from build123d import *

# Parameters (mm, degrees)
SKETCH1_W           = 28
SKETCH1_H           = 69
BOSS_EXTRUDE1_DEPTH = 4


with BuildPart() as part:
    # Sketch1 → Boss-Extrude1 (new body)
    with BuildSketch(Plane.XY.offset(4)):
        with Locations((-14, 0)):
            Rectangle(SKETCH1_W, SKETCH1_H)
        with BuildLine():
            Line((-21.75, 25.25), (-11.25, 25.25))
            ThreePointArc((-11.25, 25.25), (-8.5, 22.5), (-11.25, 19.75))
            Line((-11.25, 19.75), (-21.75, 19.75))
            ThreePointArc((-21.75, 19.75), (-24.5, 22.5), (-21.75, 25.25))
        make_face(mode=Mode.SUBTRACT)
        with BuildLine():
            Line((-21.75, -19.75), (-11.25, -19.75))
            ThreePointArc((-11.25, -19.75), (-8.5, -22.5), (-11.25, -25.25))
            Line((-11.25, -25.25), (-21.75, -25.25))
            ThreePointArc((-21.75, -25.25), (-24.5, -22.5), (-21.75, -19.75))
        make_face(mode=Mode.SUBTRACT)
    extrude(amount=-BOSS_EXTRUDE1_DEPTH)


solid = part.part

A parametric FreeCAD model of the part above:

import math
import FreeCAD as App
import Part
import Sketcher
from FreeCAD import Vector

doc = App.newDocument("Part")
body = doc.addObject("PartDesign::Body", "Body")

# Sketch on XY plane
sketch1 = body.newObject("Sketcher::SketchObject", "Sketch")
sketch1.AttachmentSupport = (doc.getObject("XY_Plane"), [""])
sketch1.MapMode = "FlatFace"
sketch1.AttachmentOffset = App.Placement(Vector(0, 0, 4), App.Rotation())
sketch1.addGeometry(Part.LineSegment(Vector(-28, 34.5, 0), Vector(-28, -34.5, 0)), False)
sketch1.addGeometry(Part.LineSegment(Vector(-28, -34.5, 0), Vector(0, -34.5, 0)), False)
sketch1.addGeometry(Part.LineSegment(Vector(0, -34.5, 0), Vector(0, 34.5, 0)), False)
sketch1.addGeometry(Part.LineSegment(Vector(0, 34.5, 0), Vector(-28, 34.5, 0)), False)
sketch1.addGeometry(Part.ArcOfCircle(Part.Circle(Vector(-21.75, -22.5, 0), Vector(0, 0, 1), 2.75), math.radians(90), math.radians(270)), False)
sketch1.addGeometry(Part.LineSegment(Vector(-21.75, -19.75, 0), Vector(-11.25, -19.75, 0)), False)
sketch1.addGeometry(Part.ArcOfCircle(Part.Circle(Vector(-11.25, -22.5, 0), Vector(0, 0, 1), 2.75), math.radians(-90), math.radians(90)), False)
sketch1.addGeometry(Part.LineSegment(Vector(-11.25, -25.25, 0), Vector(-21.75, -25.25, 0)), False)
sketch1.addGeometry(Part.ArcOfCircle(Part.Circle(Vector(-21.75, 22.5, 0), Vector(0, 0, 1), 2.75), math.radians(90), math.radians(270)), False)
sketch1.addGeometry(Part.LineSegment(Vector(-21.75, 25.25, 0), Vector(-11.25, 25.25, 0)), False)
sketch1.addGeometry(Part.ArcOfCircle(Part.Circle(Vector(-11.25, 22.5, 0), Vector(0, 0, 1), 2.75), math.radians(-90), math.radians(90)), False)
sketch1.addGeometry(Part.LineSegment(Vector(-11.25, 19.75, 0), Vector(-21.75, 19.75, 0)), False)
sketch1.addConstraint(Sketcher.Constraint("Coincident", 0, 2, 1, 1))
sketch1.addConstraint(Sketcher.Constraint("Coincident", 1, 2, 2, 1))
sketch1.addConstraint(Sketcher.Constraint("Coincident", 2, 2, 3, 1))
sketch1.addConstraint(Sketcher.Constraint("Coincident", 3, 2, 0, 1))
sketch1.addConstraint(Sketcher.Constraint("Tangent", 4, 1, 5, 1))
sketch1.addConstraint(Sketcher.Constraint("Tangent", 5, 2, 6, 2))
sketch1.addConstraint(Sketcher.Constraint("Tangent", 6, 1, 7, 1))
sketch1.addConstraint(Sketcher.Constraint("Tangent", 7, 2, 4, 2))
sketch1.addConstraint(Sketcher.Constraint("Tangent", 8, 1, 9, 1))
sketch1.addConstraint(Sketcher.Constraint("Tangent", 9, 2, 10, 2))
sketch1.addConstraint(Sketcher.Constraint("Tangent", 10, 1, 11, 1))
sketch1.addConstraint(Sketcher.Constraint("Tangent", 11, 2, 8, 2))
sketch1.addConstraint(Sketcher.Constraint("Vertical", 0))
sketch1.addConstraint(Sketcher.Constraint("Horizontal", 1))
sketch1.addConstraint(Sketcher.Constraint("Vertical", 2))
sketch1.addConstraint(Sketcher.Constraint("Horizontal", 3))
sketch1.addConstraint(Sketcher.Constraint("Horizontal", 5))
sketch1.addConstraint(Sketcher.Constraint("Horizontal", 7))
sketch1.addConstraint(Sketcher.Constraint("Horizontal", 9))
sketch1.addConstraint(Sketcher.Constraint("Horizontal", 11))
sketch1.addConstraint(Sketcher.Constraint("Equal", 6, 8))
sketch1.addConstraint(Sketcher.Constraint("Symmetric", 1, 2, 2, 2, -1, 1))
sketch1.addConstraint(Sketcher.Constraint("Symmetric", 4, 3, 8, 3, -1))
sketch1.addConstraint(Sketcher.Constraint("Vertical", 6, 3, 10, 3))
sketch1.addConstraint(Sketcher.Constraint("DistanceX", 1, 1, 1, 2, 28.0))
sketch1.addConstraint(Sketcher.Constraint("DistanceY", 0, 2, 0, 1, 69.0))
sketch1.addConstraint(Sketcher.Constraint("Radius", 4, 2.75))
sketch1.addConstraint(Sketcher.Constraint("DistanceX", 5, 1, 5, 2, 10.5))
sketch1.addConstraint(Sketcher.Constraint("DistanceY", 4, 3, 8, 3, 45.0))
sketch1.addConstraint(Sketcher.Constraint("DistanceX", 4, 3, -1, 1, 21.75))
pad1 = body.newObject("PartDesign::Pad", "Pad")
pad1.Profile = sketch1
pad1.Length = 4
pad1.Reversed = True

doc.recompute()
